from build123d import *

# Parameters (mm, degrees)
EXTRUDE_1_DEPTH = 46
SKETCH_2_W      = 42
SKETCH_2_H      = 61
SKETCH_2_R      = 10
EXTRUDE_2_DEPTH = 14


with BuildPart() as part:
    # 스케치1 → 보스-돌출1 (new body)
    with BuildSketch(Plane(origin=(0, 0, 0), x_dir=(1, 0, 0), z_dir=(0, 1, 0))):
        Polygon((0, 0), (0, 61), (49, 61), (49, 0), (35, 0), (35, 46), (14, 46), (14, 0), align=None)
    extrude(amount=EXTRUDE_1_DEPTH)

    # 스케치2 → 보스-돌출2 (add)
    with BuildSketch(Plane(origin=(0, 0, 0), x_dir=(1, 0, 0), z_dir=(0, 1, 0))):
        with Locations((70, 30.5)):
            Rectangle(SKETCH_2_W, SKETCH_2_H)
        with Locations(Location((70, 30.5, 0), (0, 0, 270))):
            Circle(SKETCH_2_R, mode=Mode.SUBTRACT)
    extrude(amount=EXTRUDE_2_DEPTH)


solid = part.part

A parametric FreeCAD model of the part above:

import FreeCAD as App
import Part
import Sketcher
from FreeCAD import Vector
Q = App.Units.Quantity


def add_polygon(sketch, points):
    """Adds a closed chain of lines whose ends are joined by coincident constraints."""
    first, n = sketch.GeometryCount, len(points)
    for a, b in zip(points, points[1:] + points[:1]):
        sketch.addGeometry(Part.LineSegment(App.Vector(*a, 0), App.Vector(*b, 0)), False)
    for i in range(n):
        sketch.addConstraint(Sketcher.Constraint("Coincident", first + i, 2, first + (i + 1) % n, 1))

doc = App.newDocument("Part")
body = doc.addObject("PartDesign::Body", "Body")

sketch1 = doc.addObject("Sketcher::SketchObject", "Sketch")
body.addObject(sketch1)
sketch1.AttachmentSupport = (doc.XZ_Plane, [""])
sketch1.MapMode = "FlatFace"
add_polygon(sketch1, [(0, -61), (0, 0), (14, 0), (14, -46), (35, -46), (35, 0), (49, 0), (49, -61)])
sketch1.addConstraint(Sketcher.Constraint("Vertical", 0))
sketch1.addConstraint(Sketcher.Constraint("Horizontal", 1))
sketch1.addConstraint(Sketcher.Constraint("Vertical", 2))
sketch1.addConstraint(Sketcher.Constraint("Horizontal", 3))
sketch1.addConstraint(Sketcher.Constraint("Vertical", 4))
sketch1.addConstraint(Sketcher.Constraint("Horizontal", 5))
sketch1.addConstraint(Sketcher.Constraint("Vertical", 6))
sketch1.addConstraint(Sketcher.Constraint("Horizontal", 7))
sketch1.addConstraint(Sketcher.Constraint("Coincident", 0, 2, -1, 1))
sketch1.addConstraint(Sketcher.Constraint("PointOnObject", 4, 2, -1))
sketch1.addConstraint(Sketcher.Constraint("Equal", 1, 5))
sketch1.addConstraint(Sketcher.Constraint("DistanceX", 1, 1, 1, 2, Q("14 mm")))
sketch1.addConstraint(Sketcher.Constraint("DistanceX", 3, 1, 3, 2, Q("21 mm")))
sketch1.addConstraint(Sketcher.Constraint("DistanceY", 0, 1, 0, 2, Q("61 mm")))
sketch1.addConstraint(Sketcher.Constraint("DistanceY", 2, 2, 2, 1, Q("46 mm")))
pad1 = doc.addObject("PartDesign::Pad", "Pad")
body.addObject(pad1)
pad1.Profile = sketch1
pad1.Length = 46
pad1.Reversed = True

sketch2 = doc.addObject("Sketcher::SketchObject", "Sketch001")
body.addObject(sketch2)
sketch2.AttachmentSupport = (doc.XZ_Plane, [""])
sketch2.MapMode = "FlatFace"
add_polygon(sketch2, [(49, -61), (49, 0), (91, 0), (91, -61)])
sketch2.addGeometry(Part.Circle(Vector(70, -30, 0), Vector(0, 0, 1), 10), False)
sketch2.addConstraint(Sketcher.Constraint("Vertical", 0))
sketch2.addConstraint(Sketcher.Constraint("Horizontal", 1))
sketch2.addConstraint(Sketcher.Constraint("Vertical", 2))
sketch2.addConstraint(Sketcher.Constraint("Horizontal", 3))
sketch2.addConstraint(Sketcher.Constraint("PointOnObject", 0, 2, -1))
sketch2.addConstraint(Sketcher.Constraint("Diameter", 4, Q("20 mm")))
sketch2.addConstraint(Sketcher.Constraint("DistanceX", 1, 1, 1, 2, Q("42 mm")))
sketch2.addConstraint(Sketcher.Constraint("DistanceY", 0, 1, 0, 2, Q("61 mm")))
sketch2.addConstraint(Sketcher.Constraint("DistanceX", -1, 1, 4, 3, Q("70 mm")))
sketch2.addConstraint(Sketcher.Constraint("DistanceX", -1, 1, 0, 2, Q("49 mm")))
sketch2.addConstraint(Sketcher.Constraint("DistanceY", 4, 3, -1, 1, Q("30.5 mm")))
pad2 = doc.addObject("PartDesign::Pad", "Pad001")
body.addObject(pad2)
pad2.Profile = sketch2
pad2.Length = 14
pad2.Reversed = True

doc.recompute()
